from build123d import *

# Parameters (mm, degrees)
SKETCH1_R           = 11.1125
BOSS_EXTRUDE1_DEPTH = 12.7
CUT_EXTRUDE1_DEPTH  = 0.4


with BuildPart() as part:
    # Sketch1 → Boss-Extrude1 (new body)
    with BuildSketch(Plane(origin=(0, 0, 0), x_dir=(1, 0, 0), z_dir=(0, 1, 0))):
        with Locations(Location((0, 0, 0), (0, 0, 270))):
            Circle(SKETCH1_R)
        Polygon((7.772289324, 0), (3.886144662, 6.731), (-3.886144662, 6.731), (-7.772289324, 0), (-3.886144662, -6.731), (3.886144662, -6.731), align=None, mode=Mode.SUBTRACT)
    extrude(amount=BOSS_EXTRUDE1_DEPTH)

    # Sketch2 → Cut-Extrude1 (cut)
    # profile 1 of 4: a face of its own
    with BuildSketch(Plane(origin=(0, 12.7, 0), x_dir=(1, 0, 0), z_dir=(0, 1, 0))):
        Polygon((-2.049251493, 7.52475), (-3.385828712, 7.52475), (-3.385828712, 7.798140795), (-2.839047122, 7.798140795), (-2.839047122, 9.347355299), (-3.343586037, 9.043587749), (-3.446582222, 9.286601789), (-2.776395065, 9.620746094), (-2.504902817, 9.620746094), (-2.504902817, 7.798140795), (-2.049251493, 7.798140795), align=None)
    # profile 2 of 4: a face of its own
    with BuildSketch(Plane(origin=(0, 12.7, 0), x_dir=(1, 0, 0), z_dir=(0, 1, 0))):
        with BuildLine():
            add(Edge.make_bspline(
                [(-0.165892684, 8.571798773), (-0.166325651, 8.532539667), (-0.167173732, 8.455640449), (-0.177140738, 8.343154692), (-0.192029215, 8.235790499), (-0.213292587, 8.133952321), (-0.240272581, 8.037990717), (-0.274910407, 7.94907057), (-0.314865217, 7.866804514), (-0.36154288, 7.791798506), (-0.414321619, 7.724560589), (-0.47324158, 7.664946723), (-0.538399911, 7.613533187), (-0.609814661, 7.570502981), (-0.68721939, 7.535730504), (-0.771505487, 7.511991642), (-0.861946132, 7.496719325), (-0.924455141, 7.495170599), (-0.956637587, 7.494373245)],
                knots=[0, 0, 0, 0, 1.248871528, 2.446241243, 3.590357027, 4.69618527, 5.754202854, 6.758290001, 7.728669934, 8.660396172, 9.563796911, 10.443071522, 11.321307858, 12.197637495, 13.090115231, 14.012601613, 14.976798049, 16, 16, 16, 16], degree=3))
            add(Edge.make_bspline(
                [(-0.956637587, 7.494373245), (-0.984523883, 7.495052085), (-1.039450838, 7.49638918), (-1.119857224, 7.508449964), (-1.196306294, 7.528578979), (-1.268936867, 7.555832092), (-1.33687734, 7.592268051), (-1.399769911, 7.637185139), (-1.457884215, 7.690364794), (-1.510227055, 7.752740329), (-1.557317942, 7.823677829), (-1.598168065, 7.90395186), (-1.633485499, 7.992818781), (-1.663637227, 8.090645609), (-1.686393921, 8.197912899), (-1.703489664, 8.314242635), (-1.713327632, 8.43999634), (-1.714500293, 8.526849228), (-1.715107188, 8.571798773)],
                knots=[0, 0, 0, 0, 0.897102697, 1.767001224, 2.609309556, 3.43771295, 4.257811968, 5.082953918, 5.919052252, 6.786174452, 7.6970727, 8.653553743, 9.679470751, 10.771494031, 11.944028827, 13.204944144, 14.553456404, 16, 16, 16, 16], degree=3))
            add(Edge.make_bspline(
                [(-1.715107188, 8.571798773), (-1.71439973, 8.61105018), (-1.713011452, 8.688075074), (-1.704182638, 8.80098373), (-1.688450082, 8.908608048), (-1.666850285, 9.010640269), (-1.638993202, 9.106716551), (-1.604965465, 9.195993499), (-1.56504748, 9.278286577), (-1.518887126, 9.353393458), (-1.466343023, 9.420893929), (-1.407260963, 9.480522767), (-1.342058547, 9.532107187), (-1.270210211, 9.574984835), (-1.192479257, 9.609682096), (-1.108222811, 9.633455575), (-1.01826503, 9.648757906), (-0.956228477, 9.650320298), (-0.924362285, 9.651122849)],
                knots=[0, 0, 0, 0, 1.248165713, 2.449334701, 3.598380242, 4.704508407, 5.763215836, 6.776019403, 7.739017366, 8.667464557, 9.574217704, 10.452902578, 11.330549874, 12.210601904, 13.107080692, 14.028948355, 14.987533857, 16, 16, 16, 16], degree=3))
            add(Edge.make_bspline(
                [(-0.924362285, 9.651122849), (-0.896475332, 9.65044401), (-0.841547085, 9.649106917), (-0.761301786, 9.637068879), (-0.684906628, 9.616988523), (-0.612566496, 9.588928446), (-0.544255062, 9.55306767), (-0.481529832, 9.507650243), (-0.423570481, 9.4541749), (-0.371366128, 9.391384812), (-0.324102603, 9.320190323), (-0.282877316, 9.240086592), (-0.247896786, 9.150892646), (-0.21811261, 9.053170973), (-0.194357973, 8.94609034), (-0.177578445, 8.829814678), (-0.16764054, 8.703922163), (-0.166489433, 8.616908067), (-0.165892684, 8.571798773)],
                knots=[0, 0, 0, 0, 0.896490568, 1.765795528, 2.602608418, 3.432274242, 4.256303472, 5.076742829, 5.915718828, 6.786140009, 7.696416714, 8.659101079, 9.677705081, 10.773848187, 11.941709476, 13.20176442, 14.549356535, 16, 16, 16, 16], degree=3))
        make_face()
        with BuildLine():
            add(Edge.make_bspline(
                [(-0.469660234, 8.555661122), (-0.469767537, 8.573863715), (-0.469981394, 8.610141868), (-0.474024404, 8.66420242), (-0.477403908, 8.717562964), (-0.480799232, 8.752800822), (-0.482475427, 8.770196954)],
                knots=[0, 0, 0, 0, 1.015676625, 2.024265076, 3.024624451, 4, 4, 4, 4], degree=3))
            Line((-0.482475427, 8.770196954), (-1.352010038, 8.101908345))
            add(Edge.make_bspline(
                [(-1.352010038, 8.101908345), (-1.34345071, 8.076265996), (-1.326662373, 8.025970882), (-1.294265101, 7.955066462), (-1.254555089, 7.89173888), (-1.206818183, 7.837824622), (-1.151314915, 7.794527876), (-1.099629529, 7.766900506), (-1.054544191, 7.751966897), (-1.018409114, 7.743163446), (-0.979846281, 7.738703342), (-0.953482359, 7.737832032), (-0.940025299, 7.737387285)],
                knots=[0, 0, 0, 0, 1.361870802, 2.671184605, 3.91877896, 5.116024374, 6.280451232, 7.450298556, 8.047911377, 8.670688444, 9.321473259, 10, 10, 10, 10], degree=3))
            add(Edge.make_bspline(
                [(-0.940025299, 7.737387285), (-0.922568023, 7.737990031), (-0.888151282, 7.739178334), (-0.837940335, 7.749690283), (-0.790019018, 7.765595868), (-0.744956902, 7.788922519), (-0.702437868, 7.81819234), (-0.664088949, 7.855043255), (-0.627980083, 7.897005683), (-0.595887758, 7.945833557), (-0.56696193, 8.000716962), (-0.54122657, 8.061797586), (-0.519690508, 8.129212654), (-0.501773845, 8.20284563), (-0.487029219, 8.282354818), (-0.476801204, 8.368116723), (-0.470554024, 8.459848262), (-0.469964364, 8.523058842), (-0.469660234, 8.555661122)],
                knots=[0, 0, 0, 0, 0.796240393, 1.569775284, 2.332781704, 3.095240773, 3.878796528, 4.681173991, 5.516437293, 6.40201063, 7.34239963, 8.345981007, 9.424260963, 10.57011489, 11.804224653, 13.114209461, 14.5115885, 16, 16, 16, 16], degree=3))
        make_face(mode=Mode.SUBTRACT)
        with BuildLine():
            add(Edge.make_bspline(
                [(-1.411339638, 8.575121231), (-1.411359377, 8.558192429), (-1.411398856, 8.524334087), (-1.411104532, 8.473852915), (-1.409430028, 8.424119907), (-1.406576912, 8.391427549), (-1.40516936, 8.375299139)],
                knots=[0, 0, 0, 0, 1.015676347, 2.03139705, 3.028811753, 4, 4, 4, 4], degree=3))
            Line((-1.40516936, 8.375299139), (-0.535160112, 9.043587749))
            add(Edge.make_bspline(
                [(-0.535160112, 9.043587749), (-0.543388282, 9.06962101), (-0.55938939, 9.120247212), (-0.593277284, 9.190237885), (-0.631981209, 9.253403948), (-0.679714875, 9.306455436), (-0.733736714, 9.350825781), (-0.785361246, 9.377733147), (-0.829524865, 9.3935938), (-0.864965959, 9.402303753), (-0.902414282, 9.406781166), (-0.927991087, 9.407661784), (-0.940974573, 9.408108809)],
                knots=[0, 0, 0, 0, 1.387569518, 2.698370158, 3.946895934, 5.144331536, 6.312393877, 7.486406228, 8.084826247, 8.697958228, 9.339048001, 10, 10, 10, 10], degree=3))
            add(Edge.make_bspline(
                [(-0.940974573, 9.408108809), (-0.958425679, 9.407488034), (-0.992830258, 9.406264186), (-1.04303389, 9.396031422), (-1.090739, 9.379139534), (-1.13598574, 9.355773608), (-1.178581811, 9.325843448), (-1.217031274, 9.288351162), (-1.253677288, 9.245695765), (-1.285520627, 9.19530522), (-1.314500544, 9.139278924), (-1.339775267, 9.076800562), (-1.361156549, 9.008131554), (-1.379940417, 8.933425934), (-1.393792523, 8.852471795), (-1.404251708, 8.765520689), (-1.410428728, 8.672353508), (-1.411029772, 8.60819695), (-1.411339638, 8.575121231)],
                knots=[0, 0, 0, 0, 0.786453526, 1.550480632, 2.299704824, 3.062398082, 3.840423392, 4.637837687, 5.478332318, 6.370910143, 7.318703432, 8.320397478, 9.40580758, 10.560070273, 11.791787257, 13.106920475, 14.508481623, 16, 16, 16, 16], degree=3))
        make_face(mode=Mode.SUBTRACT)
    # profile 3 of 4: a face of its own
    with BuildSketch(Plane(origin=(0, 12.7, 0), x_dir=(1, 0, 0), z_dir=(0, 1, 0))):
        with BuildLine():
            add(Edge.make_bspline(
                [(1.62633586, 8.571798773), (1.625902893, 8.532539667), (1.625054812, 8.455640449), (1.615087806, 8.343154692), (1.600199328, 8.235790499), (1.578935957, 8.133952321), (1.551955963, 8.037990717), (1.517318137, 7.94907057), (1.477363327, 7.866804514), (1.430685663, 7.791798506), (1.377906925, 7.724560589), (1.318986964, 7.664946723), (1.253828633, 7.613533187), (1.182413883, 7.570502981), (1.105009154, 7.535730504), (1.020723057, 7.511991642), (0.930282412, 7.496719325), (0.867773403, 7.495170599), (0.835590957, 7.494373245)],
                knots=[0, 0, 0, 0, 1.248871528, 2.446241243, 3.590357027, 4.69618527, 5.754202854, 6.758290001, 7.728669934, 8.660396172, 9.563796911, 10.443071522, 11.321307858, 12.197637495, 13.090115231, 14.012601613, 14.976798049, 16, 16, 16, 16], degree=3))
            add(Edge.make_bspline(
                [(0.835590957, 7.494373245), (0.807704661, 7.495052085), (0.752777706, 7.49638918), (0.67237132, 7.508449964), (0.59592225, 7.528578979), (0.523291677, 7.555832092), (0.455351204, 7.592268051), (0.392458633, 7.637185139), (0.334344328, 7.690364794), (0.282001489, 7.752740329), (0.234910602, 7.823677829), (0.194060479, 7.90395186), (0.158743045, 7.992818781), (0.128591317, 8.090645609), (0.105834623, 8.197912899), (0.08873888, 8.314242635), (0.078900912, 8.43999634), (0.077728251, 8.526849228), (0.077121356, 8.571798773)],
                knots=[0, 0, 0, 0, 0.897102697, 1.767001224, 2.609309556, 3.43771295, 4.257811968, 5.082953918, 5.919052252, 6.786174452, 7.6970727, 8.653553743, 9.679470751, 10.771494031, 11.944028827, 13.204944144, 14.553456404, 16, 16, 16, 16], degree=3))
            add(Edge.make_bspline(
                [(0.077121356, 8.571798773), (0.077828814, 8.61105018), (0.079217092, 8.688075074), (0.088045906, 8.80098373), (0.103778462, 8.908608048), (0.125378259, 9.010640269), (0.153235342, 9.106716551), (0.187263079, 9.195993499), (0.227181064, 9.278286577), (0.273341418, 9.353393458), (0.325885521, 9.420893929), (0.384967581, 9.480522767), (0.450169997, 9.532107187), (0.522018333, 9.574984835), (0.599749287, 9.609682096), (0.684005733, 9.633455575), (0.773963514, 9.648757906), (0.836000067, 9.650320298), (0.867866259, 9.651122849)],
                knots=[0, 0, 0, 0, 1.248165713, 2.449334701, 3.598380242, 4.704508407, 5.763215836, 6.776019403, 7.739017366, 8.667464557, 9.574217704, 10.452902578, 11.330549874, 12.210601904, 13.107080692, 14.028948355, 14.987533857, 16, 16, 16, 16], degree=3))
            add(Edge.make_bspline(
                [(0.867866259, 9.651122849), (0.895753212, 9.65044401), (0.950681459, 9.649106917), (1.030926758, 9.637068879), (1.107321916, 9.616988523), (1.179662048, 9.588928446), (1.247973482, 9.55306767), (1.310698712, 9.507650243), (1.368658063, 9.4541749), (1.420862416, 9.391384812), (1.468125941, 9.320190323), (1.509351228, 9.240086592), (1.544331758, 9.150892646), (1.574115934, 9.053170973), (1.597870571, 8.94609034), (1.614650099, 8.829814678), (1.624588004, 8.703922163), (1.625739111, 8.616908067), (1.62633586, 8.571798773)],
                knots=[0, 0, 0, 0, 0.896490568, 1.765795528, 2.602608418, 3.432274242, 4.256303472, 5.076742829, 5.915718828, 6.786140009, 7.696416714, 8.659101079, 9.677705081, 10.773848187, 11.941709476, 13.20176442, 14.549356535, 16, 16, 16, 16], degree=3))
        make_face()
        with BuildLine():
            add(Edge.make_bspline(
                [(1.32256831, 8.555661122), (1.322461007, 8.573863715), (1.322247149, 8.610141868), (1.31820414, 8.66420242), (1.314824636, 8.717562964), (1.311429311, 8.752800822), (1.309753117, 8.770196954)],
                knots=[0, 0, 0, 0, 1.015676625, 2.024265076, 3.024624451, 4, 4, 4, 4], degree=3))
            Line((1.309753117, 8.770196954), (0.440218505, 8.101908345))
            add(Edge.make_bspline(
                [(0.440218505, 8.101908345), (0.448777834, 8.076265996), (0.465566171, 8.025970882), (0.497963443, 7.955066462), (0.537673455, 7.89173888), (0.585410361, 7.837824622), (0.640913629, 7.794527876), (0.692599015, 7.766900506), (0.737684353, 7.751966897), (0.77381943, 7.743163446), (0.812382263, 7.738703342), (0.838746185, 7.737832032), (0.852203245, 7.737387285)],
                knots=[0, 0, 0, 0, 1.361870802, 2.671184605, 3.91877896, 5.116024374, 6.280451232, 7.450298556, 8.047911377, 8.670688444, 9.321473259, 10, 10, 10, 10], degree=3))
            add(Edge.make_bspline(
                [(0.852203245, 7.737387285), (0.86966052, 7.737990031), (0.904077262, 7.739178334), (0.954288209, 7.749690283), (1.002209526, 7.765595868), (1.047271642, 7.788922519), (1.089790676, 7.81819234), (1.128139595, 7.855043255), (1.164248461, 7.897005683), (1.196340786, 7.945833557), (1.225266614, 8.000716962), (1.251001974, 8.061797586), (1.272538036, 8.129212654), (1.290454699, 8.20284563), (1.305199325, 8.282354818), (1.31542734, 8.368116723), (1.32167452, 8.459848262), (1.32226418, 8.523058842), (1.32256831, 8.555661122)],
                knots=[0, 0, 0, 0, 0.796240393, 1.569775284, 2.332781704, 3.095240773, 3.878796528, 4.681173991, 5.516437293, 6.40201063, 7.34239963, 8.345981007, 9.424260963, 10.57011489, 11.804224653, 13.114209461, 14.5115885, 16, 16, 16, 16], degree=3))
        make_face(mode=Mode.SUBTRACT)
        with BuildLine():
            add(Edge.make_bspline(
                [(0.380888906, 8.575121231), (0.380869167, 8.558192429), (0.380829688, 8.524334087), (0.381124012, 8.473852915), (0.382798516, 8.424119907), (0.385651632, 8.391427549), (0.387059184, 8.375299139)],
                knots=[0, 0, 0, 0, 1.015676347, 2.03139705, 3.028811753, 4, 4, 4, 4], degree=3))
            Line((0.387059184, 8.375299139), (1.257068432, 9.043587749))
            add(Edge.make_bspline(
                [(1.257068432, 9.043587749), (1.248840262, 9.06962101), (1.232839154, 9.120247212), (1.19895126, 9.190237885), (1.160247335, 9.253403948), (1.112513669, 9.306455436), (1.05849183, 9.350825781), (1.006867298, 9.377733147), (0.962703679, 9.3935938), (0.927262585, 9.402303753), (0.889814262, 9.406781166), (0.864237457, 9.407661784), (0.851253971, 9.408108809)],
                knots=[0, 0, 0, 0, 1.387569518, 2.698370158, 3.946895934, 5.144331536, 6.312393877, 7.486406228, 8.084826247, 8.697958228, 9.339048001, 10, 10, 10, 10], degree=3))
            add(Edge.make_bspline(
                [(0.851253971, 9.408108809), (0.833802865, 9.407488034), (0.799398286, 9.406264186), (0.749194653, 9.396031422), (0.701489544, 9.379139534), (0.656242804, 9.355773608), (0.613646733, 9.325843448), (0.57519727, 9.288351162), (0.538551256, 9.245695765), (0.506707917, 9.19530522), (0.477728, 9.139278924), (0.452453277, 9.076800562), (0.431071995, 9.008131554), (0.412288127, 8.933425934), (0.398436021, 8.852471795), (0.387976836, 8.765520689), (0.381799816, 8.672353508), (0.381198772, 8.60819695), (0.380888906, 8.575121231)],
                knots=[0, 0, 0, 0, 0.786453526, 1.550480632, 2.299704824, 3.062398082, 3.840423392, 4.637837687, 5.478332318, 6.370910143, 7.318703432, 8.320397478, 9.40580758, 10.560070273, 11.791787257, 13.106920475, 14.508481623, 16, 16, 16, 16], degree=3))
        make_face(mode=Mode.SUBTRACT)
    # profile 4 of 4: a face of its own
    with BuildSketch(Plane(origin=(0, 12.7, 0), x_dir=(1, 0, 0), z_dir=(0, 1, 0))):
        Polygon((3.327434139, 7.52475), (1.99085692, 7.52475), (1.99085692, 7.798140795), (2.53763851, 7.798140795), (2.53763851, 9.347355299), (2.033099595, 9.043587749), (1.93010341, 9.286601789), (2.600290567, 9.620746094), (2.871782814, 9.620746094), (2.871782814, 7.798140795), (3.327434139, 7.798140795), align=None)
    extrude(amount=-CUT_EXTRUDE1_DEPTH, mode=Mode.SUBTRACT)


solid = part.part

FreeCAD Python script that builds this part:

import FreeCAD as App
import Part
import Sketcher
Q = App.Units.Quantity

doc = App.newDocument("Part")
body = doc.addObject("PartDesign::Body", "Body")

# Sketch on XZ plane
sketch1 = body.newObject("Sketcher::SketchObject", "Sketch")
sketch1.AttachmentSupport = (doc.getObject("XZ_Plane"), [""])
sketch1.MapMode = "FlatFace"
sketch1.addGeometry([
    Part.Circle(App.Vector(0, 0, 0), App.Vector(0, 0, 1), 11),  # 0
    Part.LineSegment(App.Vector(4, -7, 0), App.Vector(8, 0, 0)),  # 1
    Part.LineSegment(App.Vector(8, 0, 0), App.Vector(4, 7, 0)),  # 2
    Part.LineSegment(App.Vector(4, 7, 0), App.Vector(-4, 7, 0)),  # 3
    Part.LineSegment(App.Vector(-4, 7, 0), App.Vector(-8, 0, 0)),  # 4
    Part.LineSegment(App.Vector(-8, 0, 0), App.Vector(-4, -7, 0)),  # 5
    Part.LineSegment(App.Vector(-4, -7, 0), App.Vector(4, -7, 0)),  # 6
], False)
sketch1.addConstraint([
    Sketcher.Constraint("Coincident", 1, 2, 2, 1),
    Sketcher.Constraint("Coincident", 2, 2, 3, 1),
    Sketcher.Constraint("Coincident", 3, 2, 4, 1),
    Sketcher.Constraint("Coincident", 4, 2, 5, 1),
    Sketcher.Constraint("Coincident", 5, 2, 6, 1),
    Sketcher.Constraint("Coincident", 6, 2, 1, 1),
    Sketcher.Constraint("Horizontal", 3),
    Sketcher.Constraint("Horizontal", 6),
    Sketcher.Constraint("Coincident", 0, 3, -1, 1),
    Sketcher.Constraint("Symmetric", 1, 2, 4, 2, -1, 1),
    Sketcher.Constraint("Symmetric", 2, 2, 5, 2, -1, 1),
    Sketcher.Constraint("PointOnObject", 1, 2, -1),
    Sketcher.Constraint("Parallel", 1, 4),
    Sketcher.Constraint("Vertical", 3, 2, 5, 2),
    Sketcher.Constraint("Diameter", 0, Q("0.875 in")),
    Sketcher.Constraint("Angle", 1, Q("60 deg")),
    Sketcher.Constraint("DistanceY", 5, 2, 3, 2, Q("0.53 in")),
    Sketcher.Constraint("DistanceX", 3, 2, 3, 1, 7.772289),
])
pad1 = body.newObject("PartDesign::Pad", "Pad")
pad1.Profile = sketch1
pad1.Length = Q("0.5 in")
pad1.Reversed = True

# Sketch on XZ plane
sketch2 = body.newObject("Sketcher::SketchObject", "Sketch001")
sketch2.AttachmentSupport = (doc.getObject("XZ_Plane"), [""])
sketch2.MapMode = "FlatFace"
sketch2.AttachmentOffset = App.Placement(App.Vector(0, 0, -0.5 * 25.4), App.Rotation())
sketch2.addGeometry([
    Part.LineSegment(App.Vector(-3.385829, -7.52475, 0), App.Vector(-2.049251, -7.52475, 0)),  # 0
    Part.LineSegment(App.Vector(-2.049251, -7.52475, 0), App.Vector(-2.049251, -7.798141, 0)),  # 1
    Part.LineSegment(App.Vector(-2.049251, -7.798141, 0), App.Vector(-2.504903, -7.798141, 0)),  # 2
    Part.LineSegment(App.Vector(-2.504903, -7.798141, 0), App.Vector(-2.504903, -9.620746, 0)),  # 3
    Part.LineSegment(App.Vector(-2.504903, -9.620746, 0), App.Vector(-2.776395, -9.620746, 0)),  # 4
    Part.LineSegment(App.Vector(-2.776395, -9.620746, 0), App.Vector(-3.446582, -9.286602, 0)),  # 5
    Part.LineSegment(App.Vector(-3.446582, -9.286602, 0), App.Vector(-3.343586, -9.043588, 0)),  # 6
    Part.LineSegment(App.Vector(-3.343586, -9.043588, 0), App.Vector(-2.839047, -9.347355, 0)),  # 7
    Part.LineSegment(App.Vector(-2.839047, -9.347355, 0), App.Vector(-2.839047, -7.798141, 0)),  # 8
    Part.LineSegment(App.Vector(-2.839047, -7.798141, 0), App.Vector(-3.385829, -7.798141, 0)),  # 9
    Part.LineSegment(App.Vector(-3.385829, -7.798141, 0), App.Vector(-3.385829, -7.52475, 0)),  # 10
    Part.BSplineCurve([App.Vector(-0.165893, -8.571799, 0), App.Vector(-0.166326, -8.53254, 0), App.Vector(-0.167174, -8.45564, 0), App.Vector(-0.177141, -8.343155, 0), App.Vector(-0.192029, -8.23579, 0), App.Vector(-0.213293, -8.133952, 0), App.Vector(-0.240273, -8.037991, 0), App.Vector(-0.27491, -7.949071, 0), App.Vector(-0.314865, -7.866805, 0), App.Vector(-0.361543, -7.791799, 0), App.Vector(-0.414322, -7.724561, 0), App.Vector(-0.473242, -7.664947, 0), App.Vector(-0.5384, -7.613533, 0), App.Vector(-0.609815, -7.570503, 0), App.Vector(-0.687219, -7.535731, 0), App.Vector(-0.771505, -7.511992, 0), App.Vector(-0.861946, -7.496719, 0), App.Vector(-0.924455, -7.495171, 0), App.Vector(-0.956638, -7.494373, 0)], [4, 1, 1, 1, 1, 1, 1, 1, 1, 1, 1, 1, 1, 1, 1, 1, 4], [0, 1.248871528, 2.446241243, 3.590357027, 4.69618527, 5.754202854, 6.758290001, 7.728669934, 8.660396172, 9.563796911, 10.443071522, 11.321307858, 12.197637495, 13.090115231, 14.012601613, 14.976798049, 16], False, 3, [1, 1, 1, 1, 1, 1, 1, 1, 1, 1, 1, 1, 1, 1, 1, 1, 1, 1, 1], False),  # 11
    Part.BSplineCurve([App.Vector(-0.924362, -9.651123, 0), App.Vector(-0.896475, -9.650444, 0), App.Vector(-0.841547, -9.649107, 0), App.Vector(-0.761302, -9.637069, 0), App.Vector(-0.684907, -9.616989, 0), App.Vector(-0.612566, -9.588928, 0), App.Vector(-0.544255, -9.553068, 0), App.Vector(-0.48153, -9.50765, 0), App.Vector(-0.42357, -9.454175, 0), App.Vector(-0.371366, -9.391385, 0), App.Vector(-0.324103, -9.32019, 0), App.Vector(-0.282877, -9.240087, 0), App.Vector(-0.247897, -9.150893, 0), App.Vector(-0.218113, -9.053171, 0), App.Vector(-0.194358, -8.94609, 0), App.Vector(-0.177578, -8.829815, 0), App.Vector(-0.167641, -8.703922, 0), App.Vector(-0.166489, -8.616908, 0), App.Vector(-0.165893, -8.571799, 0)], [4, 1, 1, 1, 1, 1, 1, 1, 1, 1, 1, 1, 1, 1, 1, 1, 4], [0, 0.896490568, 1.765795528, 2.602608418, 3.432274242, 4.256303472, 5.076742829, 5.915718828, 6.786140009, 7.696416714, 8.659101079, 9.677705081, 10.773848187, 11.941709476, 13.20176442, 14.549356535, 16], False, 3, [1, 1, 1, 1, 1, 1, 1, 1, 1, 1, 1, 1, 1, 1, 1, 1, 1, 1, 1], False),  # 12
    Part.BSplineCurve([App.Vector(-1.715107, -8.571799, 0), App.Vector(-1.7144, -8.61105, 0), App.Vector(-1.713011, -8.688075, 0), App.Vector(-1.704183, -8.800984, 0), App.Vector(-1.68845, -8.908608, 0), App.Vector(-1.66685, -9.01064, 0), App.Vector(-1.638993, -9.106717, 0), App.Vector(-1.604965, -9.195993, 0), App.Vector(-1.565047, -9.278287, 0), App.Vector(-1.518887, -9.353393, 0), App.Vector(-1.466343, -9.420894, 0), App.Vector(-1.407261, -9.480523, 0), App.Vector(-1.342059, -9.532107, 0), App.Vector(-1.27021, -9.574985, 0), App.Vector(-1.192479, -9.609682, 0), App.Vector(-1.108223, -9.633456, 0), App.Vector(-1.018265, -9.648758, 0), App.Vector(-0.956228, -9.65032, 0), App.Vector(-0.924362, -9.651123, 0)], [4, 1, 1, 1, 1, 1, 1, 1, 1, 1, 1, 1, 1, 1, 1, 1, 4], [0, 1.248165713, 2.449334701, 3.598380242, 4.704508407, 5.763215836, 6.776019403, 7.739017366, 8.667464557, 9.574217704, 10.452902578, 11.330549874, 12.210601904, 13.107080692, 14.028948355, 14.987533857, 16], False, 3, [1, 1, 1, 1, 1, 1, 1, 1, 1, 1, 1, 1, 1, 1, 1, 1, 1, 1, 1], False),  # 13
    Part.BSplineCurve([App.Vector(-0.956638, -7.494373, 0), App.Vector(-0.984524, -7.495052, 0), App.Vector(-1.039451, -7.496389, 0), App.Vector(-1.119857, -7.50845, 0), App.Vector(-1.196306, -7.528579, 0), App.Vector(-1.268937, -7.555832, 0), App.Vector(-1.336877, -7.592268, 0), App.Vector(-1.39977, -7.637185, 0), App.Vector(-1.457884, -7.690365, 0), App.Vector(-1.510227, -7.75274, 0), App.Vector(-1.557318, -7.823678, 0), App.Vector(-1.598168, -7.903952, 0), App.Vector(-1.633485, -7.992819, 0), App.Vector(-1.663637, -8.090646, 0), App.Vector(-1.686394, -8.197913, 0), App.Vector(-1.70349, -8.314243, 0), App.Vector(-1.713328, -8.439996, 0), App.Vector(-1.7145, -8.526849, 0), App.Vector(-1.715107, -8.571799, 0)], [4, 1, 1, 1, 1, 1, 1, 1, 1, 1, 1, 1, 1, 1, 1, 1, 4], [0, 0.897102697, 1.767001224, 2.609309556, 3.43771295, 4.257811968, 5.082953918, 5.919052252, 6.786174452, 7.6970727, 8.653553743, 9.679470751, 10.771494031, 11.944028827, 13.204944144, 14.553456404, 16], False, 3, [1, 1, 1, 1, 1, 1, 1, 1, 1, 1, 1, 1, 1, 1, 1, 1, 1, 1, 1], False),  # 14
    Part.BSplineCurve([App.Vector(-0.940025, -7.737387, 0), App.Vector(-0.922568, -7.73799, 0), App.Vector(-0.888151, -7.739178, 0), App.Vector(-0.83794, -7.74969, 0), App.Vector(-0.790019, -7.765596, 0), App.Vector(-0.744957, -7.788923, 0), App.Vector(-0.702438, -7.818192, 0), App.Vector(-0.664089, -7.855043, 0), App.Vector(-0.62798, -7.897006, 0), App.Vector(-0.595888, -7.945834, 0), App.Vector(-0.566962, -8.000717, 0), App.Vector(-0.541227, -8.061798, 0), App.Vector(-0.519691, -8.129213, 0), App.Vector(-0.501774, -8.202846, 0), App.Vector(-0.487029, -8.282355, 0), App.Vector(-0.476801, -8.368117, 0), App.Vector(-0.470554, -8.459848, 0), App.Vector(-0.469964, -8.523059, 0), App.Vector(-0.46966, -8.555661, 0)], [4, 1, 1, 1, 1, 1, 1, 1, 1, 1, 1, 1, 1, 1, 1, 1, 4], [0, 0.796240393, 1.569775284, 2.332781704, 3.095240773, 3.878796528, 4.681173991, 5.516437293, 6.40201063, 7.34239963, 8.345981007, 9.424260963, 10.57011489, 11.804224653, 13.114209461, 14.5115885, 16], False, 3, [1, 1, 1, 1, 1, 1, 1, 1, 1, 1, 1, 1, 1, 1, 1, 1, 1, 1, 1], False),  # 15
    Part.BSplineCurve([App.Vector(-1.35201, -8.101908, 0), App.Vector(-1.343451, -8.076266, 0), App.Vector(-1.326662, -8.025971, 0), App.Vector(-1.294265, -7.955066, 0), App.Vector(-1.254555, -7.891739, 0), App.Vector(-1.206818, -7.837825, 0), App.Vector(-1.151315, -7.794528, 0), App.Vector(-1.09963, -7.766901, 0), App.Vector(-1.054544, -7.751967, 0), App.Vector(-1.018409, -7.743163, 0), App.Vector(-0.979846, -7.738703, 0), App.Vector(-0.953482, -7.737832, 0), App.Vector(-0.940025, -7.737387, 0)], [4, 1, 1, 1, 1, 1, 1, 1, 1, 1, 4], [0, 1.361870802, 2.671184605, 3.91877896, 5.116024374, 6.280451232, 7.450298556, 8.047911377, 8.670688444, 9.321473259, 10], False, 3, [1, 1, 1, 1, 1, 1, 1, 1, 1, 1, 1, 1, 1], False),  # 16
    Part.LineSegment(App.Vector(-1.35201, -8.101908, 0), App.Vector(-0.482475, -8.770197, 0)),  # 17
    Part.BSplineCurve([App.Vector(-0.46966, -8.555661, 0), App.Vector(-0.469768, -8.573864, 0), App.Vector(-0.469981, -8.610142, 0), App.Vector(-0.474024, -8.664202, 0), App.Vector(-0.477404, -8.717563, 0), App.Vector(-0.480799, -8.752801, 0), App.Vector(-0.482475, -8.770197, 0)], [4, 1, 1, 1, 4], [0, 1.015676625, 2.024265076, 3.024624451, 4], False, 3, [1, 1, 1, 1, 1, 1, 1], False),  # 18
    Part.BSplineCurve([App.Vector(-0.940975, -9.408109, 0), App.Vector(-0.958426, -9.407488, 0), App.Vector(-0.99283, -9.406264, 0), App.Vector(-1.043034, -9.396031, 0), App.Vector(-1.090739, -9.37914, 0), App.Vector(-1.135986, -9.355774, 0), App.Vector(-1.178582, -9.325843, 0), App.Vector(-1.217031, -9.288351, 0), App.Vector(-1.253677, -9.245696, 0), App.Vector(-1.285521, -9.195305, 0), App.Vector(-1.314501, -9.139279, 0), App.Vector(-1.339775, -9.076801, 0), App.Vector(-1.361157, -9.008132, 0), App.Vector(-1.37994, -8.933426, 0), App.Vector(-1.393793, -8.852472, 0), App.Vector(-1.404252, -8.765521, 0), App.Vector(-1.410429, -8.672354, 0), App.Vector(-1.41103, -8.608197, 0), App.Vector(-1.41134, -8.575121, 0)], [4, 1, 1, 1, 1, 1, 1, 1, 1, 1, 1, 1, 1, 1, 1, 1, 4], [0, 0.786453526, 1.550480632, 2.299704824, 3.062398082, 3.840423392, 4.637837687, 5.478332318, 6.370910143, 7.318703432, 8.320397478, 9.40580758, 10.560070273, 11.791787257, 13.106920475, 14.508481623, 16], False, 3, [1, 1, 1, 1, 1, 1, 1, 1, 1, 1, 1, 1, 1, 1, 1, 1, 1, 1, 1], False),  # 19
    Part.BSplineCurve([App.Vector(-0.53516, -9.043588, 0), App.Vector(-0.543388, -9.069621, 0), App.Vector(-0.559389, -9.120247, 0), App.Vector(-0.593277, -9.190238, 0), App.Vector(-0.631981, -9.253404, 0), App.Vector(-0.679715, -9.306455, 0), App.Vector(-0.733737, -9.350826, 0), App.Vector(-0.785361, -9.377733, 0), App.Vector(-0.829525, -9.393594, 0), App.Vector(-0.864966, -9.402304, 0), App.Vector(-0.902414, -9.406781, 0), App.Vector(-0.927991, -9.407662, 0), App.Vector(-0.940975, -9.408109, 0)], [4, 1, 1, 1, 1, 1, 1, 1, 1, 1, 4], [0, 1.387569518, 2.698370158, 3.946895934, 5.144331536, 6.312393877, 7.486406228, 8.084826247, 8.697958228, 9.339048001, 10], False, 3, [1, 1, 1, 1, 1, 1, 1, 1, 1, 1, 1, 1, 1], False),  # 20
    Part.LineSegment(App.Vector(-0.53516, -9.043588, 0), App.Vector(-1.405169, -8.375299, 0)),  # 21
    Part.BSplineCurve([App.Vector(-1.41134, -8.575121, 0), App.Vector(-1.411359, -8.558192, 0), App.Vector(-1.411399, -8.524334, 0), App.Vector(-1.411105, -8.473853, 0), App.Vector(-1.40943, -8.42412, 0), App.Vector(-1.406577, -8.391428, 0), App.Vector(-1.405169, -8.375299, 0)], [4, 1, 1, 1, 4], [0, 1.015676347, 2.03139705, 3.028811753, 4], False, 3, [1, 1, 1, 1, 1, 1, 1], False),  # 22
    Part.BSplineCurve([App.Vector(1.626336, -8.571799, 0), App.Vector(1.625903, -8.53254, 0), App.Vector(1.625055, -8.45564, 0), App.Vector(1.615088, -8.343155, 0), App.Vector(1.600199, -8.23579, 0), App.Vector(1.578936, -8.133952, 0), App.Vector(1.551956, -8.037991, 0), App.Vector(1.517318, -7.949071, 0), App.Vector(1.477363, -7.866805, 0), App.Vector(1.430686, -7.791799, 0), App.Vector(1.377907, -7.724561, 0), App.Vector(1.318987, -7.664947, 0), App.Vector(1.253829, -7.613533, 0), App.Vector(1.182414, -7.570503, 0), App.Vector(1.105009, -7.535731, 0), App.Vector(1.020723, -7.511992, 0), App.Vector(0.930282, -7.496719, 0), App.Vector(0.867773, -7.495171, 0), App.Vector(0.835591, -7.494373, 0)], [4, 1, 1, 1, 1, 1, 1, 1, 1, 1, 1, 1, 1, 1, 1, 1, 4], [0, 1.248871528, 2.446241243, 3.590357027, 4.69618527, 5.754202854, 6.758290001, 7.728669934, 8.660396172, 9.563796911, 10.443071522, 11.321307858, 12.197637495, 13.090115231, 14.012601613, 14.976798049, 16], False, 3, [1, 1, 1, 1, 1, 1, 1, 1, 1, 1, 1, 1, 1, 1, 1, 1, 1, 1, 1], False),  # 23
    Part.BSplineCurve([App.Vector(0.867866, -9.651123, 0), App.Vector(0.895753, -9.650444, 0), App.Vector(0.950681, -9.649107, 0), App.Vector(1.030927, -9.637069, 0), App.Vector(1.107322, -9.616989, 0), App.Vector(1.179662, -9.588928, 0), App.Vector(1.247973, -9.553068, 0), App.Vector(1.310699, -9.50765, 0), App.Vector(1.368658, -9.454175, 0), App.Vector(1.420862, -9.391385, 0), App.Vector(1.468126, -9.32019, 0), App.Vector(1.509351, -9.240087, 0), App.Vector(1.544332, -9.150893, 0), App.Vector(1.574116, -9.053171, 0), App.Vector(1.597871, -8.94609, 0), App.Vector(1.61465, -8.829815, 0), App.Vector(1.624588, -8.703922, 0), App.Vector(1.625739, -8.616908, 0), App.Vector(1.626336, -8.571799, 0)], [4, 1, 1, 1, 1, 1, 1, 1, 1, 1, 1, 1, 1, 1, 1, 1, 4], [0, 0.896490568, 1.765795528, 2.602608418, 3.432274242, 4.256303472, 5.076742829, 5.915718828, 6.786140009, 7.696416714, 8.659101079, 9.677705081, 10.773848187, 11.941709476, 13.20176442, 14.549356535, 16], False, 3, [1, 1, 1, 1, 1, 1, 1, 1, 1, 1, 1, 1, 1, 1, 1, 1, 1, 1, 1], False),  # 24
    Part.BSplineCurve([App.Vector(0.077121, -8.571799, 0), App.Vector(0.077829, -8.61105, 0), App.Vector(0.079217, -8.688075, 0), App.Vector(0.088046, -8.800984, 0), App.Vector(0.103778, -8.908608, 0), App.Vector(0.125378, -9.01064, 0), App.Vector(0.153235, -9.106717, 0), App.Vector(0.187263, -9.195993, 0), App.Vector(0.227181, -9.278287, 0), App.Vector(0.273341, -9.353393, 0), App.Vector(0.325886, -9.420894, 0), App.Vector(0.384968, -9.480523, 0), App.Vector(0.45017, -9.532107, 0), App.Vector(0.522018, -9.574985, 0), App.Vector(0.599749, -9.609682, 0), App.Vector(0.684006, -9.633456, 0), App.Vector(0.773964, -9.648758, 0), App.Vector(0.836, -9.65032, 0), App.Vector(0.867866, -9.651123, 0)], [4, 1, 1, 1, 1, 1, 1, 1, 1, 1, 1, 1, 1, 1, 1, 1, 4], [0, 1.248165713, 2.449334701, 3.598380242, 4.704508407, 5.763215836, 6.776019403, 7.739017366, 8.667464557, 9.574217704, 10.452902578, 11.330549874, 12.210601904, 13.107080692, 14.028948355, 14.987533857, 16], False, 3, [1, 1, 1, 1, 1, 1, 1, 1, 1, 1, 1, 1, 1, 1, 1, 1, 1, 1, 1], False),  # 25
    Part.BSplineCurve([App.Vector(0.835591, -7.494373, 0), App.Vector(0.807705, -7.495052, 0), App.Vector(0.752778, -7.496389, 0), App.Vector(0.672371, -7.50845, 0), App.Vector(0.595922, -7.528579, 0), App.Vector(0.523292, -7.555832, 0), App.Vector(0.455351, -7.592268, 0), App.Vector(0.392459, -7.637185, 0), App.Vector(0.334344, -7.690365, 0), App.Vector(0.282001, -7.75274, 0), App.Vector(0.234911, -7.823678, 0), App.Vector(0.19406, -7.903952, 0), App.Vector(0.158743, -7.992819, 0), App.Vector(0.128591, -8.090646, 0), App.Vector(0.105835, -8.197913, 0), App.Vector(0.088739, -8.314243, 0), App.Vector(0.078901, -8.439996, 0), App.Vector(0.077728, -8.526849, 0), App.Vector(0.077121, -8.571799, 0)], [4, 1, 1, 1, 1, 1, 1, 1, 1, 1, 1, 1, 1, 1, 1, 1, 4], [0, 0.897102697, 1.767001224, 2.609309556, 3.43771295, 4.257811968, 5.082953918, 5.919052252, 6.786174452, 7.6970727, 8.653553743, 9.679470751, 10.771494031, 11.944028827, 13.204944144, 14.553456404, 16], False, 3, [1, 1, 1, 1, 1, 1, 1, 1, 1, 1, 1, 1, 1, 1, 1, 1, 1, 1, 1], False),  # 26
    Part.BSplineCurve([App.Vector(0.852203, -7.737387, 0), App.Vector(0.869661, -7.73799, 0), App.Vector(0.904077, -7.739178, 0), App.Vector(0.954288, -7.74969, 0), App.Vector(1.00221, -7.765596, 0), App.Vector(1.047272, -7.788923, 0), App.Vector(1.089791, -7.818192, 0), App.Vector(1.12814, -7.855043, 0), App.Vector(1.164248, -7.897006, 0), App.Vector(1.196341, -7.945834, 0), App.Vector(1.225267, -8.000717, 0), App.Vector(1.251002, -8.061798, 0), App.Vector(1.272538, -8.129213, 0), App.Vector(1.290455, -8.202846, 0), App.Vector(1.305199, -8.282355, 0), App.Vector(1.315427, -8.368117, 0), App.Vector(1.321675, -8.459848, 0), App.Vector(1.322264, -8.523059, 0), App.Vector(1.322568, -8.555661, 0)], [4, 1, 1, 1, 1, 1, 1, 1, 1, 1, 1, 1, 1, 1, 1, 1, 4], [0, 0.796240393, 1.569775284, 2.332781704, 3.095240773, 3.878796528, 4.681173991, 5.516437293, 6.40201063, 7.34239963, 8.345981007, 9.424260963, 10.57011489, 11.804224653, 13.114209461, 14.5115885, 16], False, 3, [1, 1, 1, 1, 1, 1, 1, 1, 1, 1, 1, 1, 1, 1, 1, 1, 1, 1, 1], False),  # 27
    Part.BSplineCurve([App.Vector(0.440219, -8.101908, 0), App.Vector(0.448778, -8.076266, 0), App.Vector(0.465566, -8.025971, 0), App.Vector(0.497963, -7.955066, 0), App.Vector(0.537673, -7.891739, 0), App.Vector(0.58541, -7.837825, 0), App.Vector(0.640914, -7.794528, 0), App.Vector(0.692599, -7.766901, 0), App.Vector(0.737684, -7.751967, 0), App.Vector(0.773819, -7.743163, 0), App.Vector(0.812382, -7.738703, 0), App.Vector(0.838746, -7.737832, 0), App.Vector(0.852203, -7.737387, 0)], [4, 1, 1, 1, 1, 1, 1, 1, 1, 1, 4], [0, 1.361870802, 2.671184605, 3.91877896, 5.116024374, 6.280451232, 7.450298556, 8.047911377, 8.670688444, 9.321473259, 10], False, 3, [1, 1, 1, 1, 1, 1, 1, 1, 1, 1, 1, 1, 1], False),  # 28
    Part.LineSegment(App.Vector(0.440219, -8.101908, 0), App.Vector(1.309753, -8.770197, 0)),  # 29
    Part.BSplineCurve([App.Vector(1.322568, -8.555661, 0), App.Vector(1.322461, -8.573864, 0), App.Vector(1.322247, -8.610142, 0), App.Vector(1.318204, -8.664202, 0), App.Vector(1.314825, -8.717563, 0), App.Vector(1.311429, -8.752801, 0), App.Vector(1.309753, -8.770197, 0)], [4, 1, 1, 1, 4], [0, 1.015676625, 2.024265076, 3.024624451, 4], False, 3, [1, 1, 1, 1, 1, 1, 1], False),  # 30
    Part.BSplineCurve([App.Vector(0.851254, -9.408109, 0), App.Vector(0.833803, -9.407488, 0), App.Vector(0.799398, -9.406264, 0), App.Vector(0.749195, -9.396031, 0), App.Vector(0.70149, -9.37914, 0), App.Vector(0.656243, -9.355774, 0), App.Vector(0.613647, -9.325843, 0), App.Vector(0.575197, -9.288351, 0), App.Vector(0.538551, -9.245696, 0), App.Vector(0.506708, -9.195305, 0), App.Vector(0.477728, -9.139279, 0), App.Vector(0.452453, -9.076801, 0), App.Vector(0.431072, -9.008132, 0), App.Vector(0.412288, -8.933426, 0), App.Vector(0.398436, -8.852472, 0), App.Vector(0.387977, -8.765521, 0), App.Vector(0.3818, -8.672354, 0), App.Vector(0.381199, -8.608197, 0), App.Vector(0.380889, -8.575121, 0)], [4, 1, 1, 1, 1, 1, 1, 1, 1, 1, 1, 1, 1, 1, 1, 1, 4], [0, 0.786453526, 1.550480632, 2.299704824, 3.062398082, 3.840423392, 4.637837687, 5.478332318, 6.370910143, 7.318703432, 8.320397478, 9.40580758, 10.560070273, 11.791787257, 13.106920475, 14.508481623, 16], False, 3, [1, 1, 1, 1, 1, 1, 1, 1, 1, 1, 1, 1, 1, 1, 1, 1, 1, 1, 1], False),  # 31
    Part.BSplineCurve([App.Vector(1.257068, -9.043588, 0), App.Vector(1.24884, -9.069621, 0), App.Vector(1.232839, -9.120247, 0), App.Vector(1.198951, -9.190238, 0), App.Vector(1.160247, -9.253404, 0), App.Vector(1.112514, -9.306455, 0), App.Vector(1.058492, -9.350826, 0), App.Vector(1.006867, -9.377733, 0), App.Vector(0.962704, -9.393594, 0), App.Vector(0.927263, -9.402304, 0), App.Vector(0.889814, -9.406781, 0), App.Vector(0.864237, -9.407662, 0), App.Vector(0.851254, -9.408109, 0)], [4, 1, 1, 1, 1, 1, 1, 1, 1, 1, 4], [0, 1.387569518, 2.698370158, 3.946895934, 5.144331536, 6.312393877, 7.486406228, 8.084826247, 8.697958228, 9.339048001, 10], False, 3, [1, 1, 1, 1, 1, 1, 1, 1, 1, 1, 1, 1, 1], False),  # 32
    Part.LineSegment(App.Vector(1.257068, -9.043588, 0), App.Vector(0.387059, -8.375299, 0)),  # 33
    Part.BSplineCurve([App.Vector(0.380889, -8.575121, 0), App.Vector(0.380869, -8.558192, 0), App.Vector(0.38083, -8.524334, 0), App.Vector(0.381124, -8.473853, 0), App.Vector(0.382799, -8.42412, 0), App.Vector(0.385652, -8.391428, 0), App.Vector(0.387059, -8.375299, 0)], [4, 1, 1, 1, 4], [0, 1.015676347, 2.03139705, 3.028811753, 4], False, 3, [1, 1, 1, 1, 1, 1, 1], False),  # 34
    Part.LineSegment(App.Vector(1.990857, -7.52475, 0), App.Vector(3.327434, -7.52475, 0)),  # 35
    Part.LineSegment(App.Vector(3.327434, -7.52475, 0), App.Vector(3.327434, -7.798141, 0)),  # 36
    Part.LineSegment(App.Vector(3.327434, -7.798141, 0), App.Vector(2.871783, -7.798141, 0)),  # 37
    Part.LineSegment(App.Vector(2.871783, -7.798141, 0), App.Vector(2.871783, -9.620746, 0)),  # 38
    Part.LineSegment(App.Vector(2.871783, -9.620746, 0), App.Vector(2.600291, -9.620746, 0)),  # 39
    Part.LineSegment(App.Vector(2.600291, -9.620746, 0), App.Vector(1.930103, -9.286602, 0)),  # 40
    Part.LineSegment(App.Vector(1.930103, -9.286602, 0), App.Vector(2.0331, -9.043588, 0)),  # 41
    Part.LineSegment(App.Vector(2.0331, -9.043588, 0), App.Vector(2.537639, -9.347355, 0)),  # 42
    Part.LineSegment(App.Vector(2.537639, -9.347355, 0), App.Vector(2.537639, -7.798141, 0)),  # 43
    Part.LineSegment(App.Vector(2.537639, -7.798141, 0), App.Vector(1.990857, -7.798141, 0)),  # 44
    Part.LineSegment(App.Vector(1.990857, -7.798141, 0), App.Vector(1.990857, -7.52475, 0)),  # 45
], False)
sketch2.addConstraint([
    Sketcher.Constraint("Block", 11),
    Sketcher.Constraint("Block", 12),
    Sketcher.Constraint("Block", 13),
    Sketcher.Constraint("Block", 14),
    Sketcher.Constraint("Block", 15),
    Sketcher.Constraint("Block", 16),
    Sketcher.Constraint("Block", 18),
    Sketcher.Constraint("Block", 19),
    Sketcher.Constraint("Block", 20),
    Sketcher.Constraint("Block", 22),
    Sketcher.Constraint("Block", 23),
    Sketcher.Constraint("Block", 24),
    Sketcher.Constraint("Block", 25),
    Sketcher.Constraint("Block", 26),
    Sketcher.Constraint("Block", 27),
    Sketcher.Constraint("Block", 28),
    Sketcher.Constraint("Block", 30),
    Sketcher.Constraint("Block", 31),
    Sketcher.Constraint("Block", 32),
    Sketcher.Constraint("Block", 34),
    Sketcher.Constraint("Coincident", 0, 2, 1, 1),
    Sketcher.Constraint("Coincident", 1, 2, 2, 1),
    Sketcher.Constraint("Coincident", 2, 2, 3, 1),
    Sketcher.Constraint("Coincident", 3, 2, 4, 1),
    Sketcher.Constraint("Coincident", 4, 2, 5, 1),
    Sketcher.Constraint("Coincident", 5, 2, 6, 1),
    Sketcher.Constraint("Coincident", 6, 2, 7, 1),
    Sketcher.Constraint("Coincident", 7, 2, 8, 1),
    Sketcher.Constraint("Coincident", 8, 2, 9, 1),
    Sketcher.Constraint("Coincident", 9, 2, 10, 1),
    Sketcher.Constraint("Coincident", 10, 2, 0, 1),
    Sketcher.Constraint("Coincident", 16, 1, 17, 1),
    Sketcher.Constraint("Coincident", 17, 2, 18, 2),
    Sketcher.Constraint("Coincident", 20, 1, 21, 1),
    Sketcher.Constraint("Coincident", 21, 2, 22, 2),
    Sketcher.Constraint("Coincident", 28, 1, 29, 1),
    Sketcher.Constraint("Coincident", 29, 2, 30, 2),
    Sketcher.Constraint("Coincident", 32, 1, 33, 1),
    Sketcher.Constraint("Coincident", 33, 2, 34, 2),
    Sketcher.Constraint("Coincident", 35, 2, 36, 1),
    Sketcher.Constraint("Coincident", 36, 2, 37, 1),
    Sketcher.Constraint("Coincident", 37, 2, 38, 1),
    Sketcher.Constraint("Coincident", 38, 2, 39, 1),
    Sketcher.Constraint("Coincident", 39, 2, 40, 1),
    Sketcher.Constraint("Coincident", 40, 2, 41, 1),
    Sketcher.Constraint("Coincident", 41, 2, 42, 1),
    Sketcher.Constraint("Coincident", 42, 2, 43, 1),
    Sketcher.Constraint("Coincident", 43, 2, 44, 1),
    Sketcher.Constraint("Coincident", 44, 2, 45, 1),
    Sketcher.Constraint("Coincident", 45, 2, 35, 1),
    Sketcher.Constraint("Horizontal", 0),
    Sketcher.Constraint("Vertical", 1),
    Sketcher.Constraint("Horizontal", 2),
    Sketcher.Constraint("Vertical", 3),
    Sketcher.Constraint("Horizontal", 4),
    Sketcher.Constraint("Vertical", 8),
    Sketcher.Constraint("Horizontal", 9),
    Sketcher.Constraint("Vertical", 10),
    Sketcher.Constraint("Horizontal", 35),
    Sketcher.Constraint("Vertical", 36),
    Sketcher.Constraint("Horizontal", 37),
    Sketcher.Constraint("Vertical", 38),
    Sketcher.Constraint("Horizontal", 39),
    Sketcher.Constraint("Vertical", 43),
    Sketcher.Constraint("Horizontal", 44),
    Sketcher.Constraint("Vertical", 45),
    Sketcher.Constraint("Parallel", 5, 40),
    Sketcher.Constraint("Parallel", 6, 41),
    Sketcher.Constraint("Parallel", 7, 42),
    Sketcher.Constraint("Horizontal", 2, 2, 8, 2),
    Sketcher.Constraint("Horizontal", 10, 2, 35, 2),
    Sketcher.Constraint("Horizontal", 9, 2, 36, 2),
    Sketcher.Constraint("Horizontal", 4, 2, 38, 2),
    Sketcher.Constraint("Horizontal", 5, 2, 40, 2),
    Sketcher.Constraint("Horizontal", 6, 2, 41, 2),
    Sketcher.Constraint("Horizontal", 7, 2, 42, 2),
    Sketcher.Constraint("Horizontal", 37, 2, 43, 2),
    Sketcher.Constraint("Equal", 0, 35),
    Sketcher.Constraint("Equal", 2, 37),
    Sketcher.Constraint("Equal", 4, 39),
    Sketcher.Constraint("DistanceX", 2, 2, 2, 1, 0.455651),
    Sketcher.Constraint("DistanceX", 9, 2, 9, 1, 0.546782),
    Sketcher.Constraint("DistanceY", 1, 2, 1, 1, 0.273391),
    Sketcher.Constraint("DistanceY", 5, 2, -1, 1, 9.286602),
    Sketcher.Constraint("DistanceX", -1, 1, 41, 2, 2.0331),
    Sketcher.Constraint("Distance", 6, 0.263939),
    Sketcher.Constraint("DistanceX", 0, 1, 0, 2, 1.336577),
    Sketcher.Constraint("DistanceX", 4, 2, 4, 1, 0.271492),
    Sketcher.Constraint("DistanceY", 3, 2, 3, 1, 1.822605),
    Sketcher.Constraint("DistanceY", 8, 1, 8, 2, 1.549215),
    Sketcher.Constraint("DistanceX", 0, 2, -1, 1, 2.049251),
    Sketcher.Constraint("DistanceY", 0, 2, -1, 1, 7.52475),
    Sketcher.Constraint("DistanceX", -1, 1, 39, 2, 2.600291),
    Sketcher.Constraint("DistanceX", 5, 2, 3, 2, 0.941679),
])
pocket1 = body.newObject("PartDesign::Pocket", "Pocket")
pocket1.Profile = sketch2
pocket1.Length = 0.4
pocket1.Reversed = True

doc.recompute()
